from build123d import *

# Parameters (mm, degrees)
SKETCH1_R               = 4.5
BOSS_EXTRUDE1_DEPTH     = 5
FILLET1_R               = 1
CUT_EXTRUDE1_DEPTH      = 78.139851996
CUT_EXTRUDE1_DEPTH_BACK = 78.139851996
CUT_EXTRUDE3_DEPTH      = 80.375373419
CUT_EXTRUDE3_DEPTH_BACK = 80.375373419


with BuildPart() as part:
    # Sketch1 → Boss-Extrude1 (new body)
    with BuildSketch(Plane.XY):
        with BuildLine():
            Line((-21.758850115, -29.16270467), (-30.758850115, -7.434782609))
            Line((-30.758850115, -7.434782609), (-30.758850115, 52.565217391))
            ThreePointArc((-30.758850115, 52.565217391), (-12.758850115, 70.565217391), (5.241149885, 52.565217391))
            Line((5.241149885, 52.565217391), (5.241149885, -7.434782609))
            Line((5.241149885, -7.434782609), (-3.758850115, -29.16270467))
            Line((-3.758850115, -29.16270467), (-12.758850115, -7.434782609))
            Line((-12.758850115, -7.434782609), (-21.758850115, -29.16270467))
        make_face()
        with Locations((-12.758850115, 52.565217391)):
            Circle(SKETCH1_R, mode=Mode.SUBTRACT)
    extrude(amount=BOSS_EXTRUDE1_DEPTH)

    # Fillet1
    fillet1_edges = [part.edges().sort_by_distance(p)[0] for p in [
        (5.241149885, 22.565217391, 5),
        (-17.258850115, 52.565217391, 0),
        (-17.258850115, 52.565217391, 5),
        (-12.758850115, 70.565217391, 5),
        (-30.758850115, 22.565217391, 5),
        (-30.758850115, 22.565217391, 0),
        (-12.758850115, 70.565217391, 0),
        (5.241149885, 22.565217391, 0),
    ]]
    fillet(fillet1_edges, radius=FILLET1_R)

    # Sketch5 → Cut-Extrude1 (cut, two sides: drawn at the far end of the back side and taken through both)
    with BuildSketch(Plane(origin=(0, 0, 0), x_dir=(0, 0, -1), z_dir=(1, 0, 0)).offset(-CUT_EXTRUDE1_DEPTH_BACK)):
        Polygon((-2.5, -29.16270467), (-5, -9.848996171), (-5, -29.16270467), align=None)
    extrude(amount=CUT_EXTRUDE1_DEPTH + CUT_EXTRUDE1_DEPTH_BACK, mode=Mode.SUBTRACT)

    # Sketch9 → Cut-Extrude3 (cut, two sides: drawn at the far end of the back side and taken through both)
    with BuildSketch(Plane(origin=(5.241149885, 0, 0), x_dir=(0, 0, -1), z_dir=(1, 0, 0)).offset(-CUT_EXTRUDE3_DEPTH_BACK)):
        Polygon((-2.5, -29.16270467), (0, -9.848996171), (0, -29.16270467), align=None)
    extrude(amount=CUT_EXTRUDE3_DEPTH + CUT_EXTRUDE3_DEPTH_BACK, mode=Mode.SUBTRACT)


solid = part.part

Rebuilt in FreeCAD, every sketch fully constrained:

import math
import FreeCAD as App
import Part
import Sketcher
Q = App.Units.Quantity


def edges_at(feature, points):
    """Names of the edges that pass closest to the given points."""
    edges = feature.Shape.Edges
    near = lambda p: min(range(len(edges)), key=lambda i: edges[i].distToShape(Part.Vertex(*p))[0])
    return sorted({f"Edge{near(p) + 1}" for p in points})


def add_polygon(sketch, points):
    """Adds a closed chain of lines whose ends are joined by coincident constraints."""
    first, n = sketch.GeometryCount, len(points)
    for a, b in zip(points, points[1:] + points[:1]):
        sketch.addGeometry(Part.LineSegment(App.Vector(*a, 0), App.Vector(*b, 0)), False)
    for i in range(n):
        sketch.addConstraint(Sketcher.Constraint("Coincident", first + i, 2, first + (i + 1) % n, 1))

doc = App.newDocument("Part")
body = doc.addObject("PartDesign::Body", "Body")

sketch1 = doc.addObject("Sketcher::SketchObject", "Sketch")
body.addObject(sketch1)
sketch1.AttachmentSupport = (doc.XY_Plane, [""])
sketch1.MapMode = "FlatFace"
sketch1.addGeometry([
    Part.LineSegment(App.Vector(-30.8, -7.4, 0), App.Vector(-21.8, -29.2, 0)),
    Part.LineSegment(App.Vector(-21.8, -29.2, 0), App.Vector(-12.8, -7.4, 0)),
    Part.LineSegment(App.Vector(-12.8, -7.4, 0), App.Vector(-3.8, -29.2, 0)),
    Part.LineSegment(App.Vector(-3.8, -29.2, 0), App.Vector(5.2, -7.4, 0)),
    Part.LineSegment(App.Vector(5.2, -7.4, 0), App.Vector(5.2, 52.6, 0)),
    Part.ArcOfCircle(Part.Circle(App.Vector(-12.8, 52.6, 0), App.Vector(0, 0, 1), 18), math.radians(0), math.radians(180)),
    Part.LineSegment(App.Vector(-30.8, 52.6, 0), App.Vector(-30.8, -7.4, 0)),
    Part.Circle(App.Vector(-12.8, 52.6, 0), App.Vector(0, 0, 1), 4.5),
], False)
sketch1.addConstraint([
    Sketcher.Constraint("Coincident", 0, 2, 1, 1),
    Sketcher.Constraint("Coincident", 1, 2, 2, 1),
    Sketcher.Constraint("Coincident", 2, 2, 3, 1),
    Sketcher.Constraint("Coincident", 3, 2, 4, 1),
    Sketcher.Constraint("Tangent", 4, 2, 5, 1),
    Sketcher.Constraint("Tangent", 5, 2, 6, 1),
    Sketcher.Constraint("Coincident", 6, 2, 0, 1),
    Sketcher.Constraint("Vertical", 4),
    Sketcher.Constraint("Vertical", 6),
    Sketcher.Constraint("Coincident", 7, 3, 5, 3),
    Sketcher.Constraint("Parallel", 0, 2),
    Sketcher.Constraint("Parallel", 1, 3),
    Sketcher.Constraint("Horizontal", 0, 2, 2, 2),
    Sketcher.Constraint("Horizontal", 1, 2, 3, 2),
    Sketcher.Constraint("Horizontal", 3, 2, 6, 2),
    Sketcher.Constraint("Equal", 0, 1),
    Sketcher.Constraint("Diameter", 7, Q("9 mm")),
    Sketcher.Constraint("Radius", 5, Q("18 mm")),
    Sketcher.Constraint("DistanceY", 4, 1, 4, 2, Q("60 mm")),
    Sketcher.Constraint("Angle", 0, Q("-67.5 deg")),
    Sketcher.Constraint("DistanceX", 5, 3, -1, 1, Q("12.75885 mm")),
    Sketcher.Constraint("DistanceY", -1, 1, 5, 3, Q("52.565217 mm")),
])
pad1 = doc.addObject("PartDesign::Pad", "Pad")
body.addObject(pad1)
pad1.Profile = sketch1
pad1.Length = 5
doc.recompute()

fillet = doc.addObject("PartDesign::Fillet", "Fillet")
body.addObject(fillet)
fillet.Base = (pad1, edges_at(pad1, [
    (5.241, 22.565, 5),
    (-17.259, 52.565, 0),
    (-17.259, 52.565, 5),
    (-12.759, 70.565, 5),
    (-30.759, 22.565, 5),
    (-30.759, 22.565, 0),
    (-12.759, 70.565, 0),
    (5.241, 22.565, 0),
]))
fillet.Radius = 1

sketch2 = doc.addObject("Sketcher::SketchObject", "Sketch001")
body.addObject(sketch2)
sketch2.AttachmentSupport = (doc.YZ_Plane, [""])
sketch2.MapMode = "FlatFace"
add_polygon(sketch2, [(-29.2, 2.5), (-9.8, 5), (-29.2, 5)])
sketch2.addConstraint([
    Sketcher.Constraint("Horizontal", 1),
    Sketcher.Constraint("Vertical", 2),
    Sketcher.Constraint("DistanceY", 2, 2, 2, 1, Q("2.5 mm")),
    Sketcher.Constraint("DistanceY", -1, 1, 0, 2, Q("5 mm")),
    Sketcher.Constraint("DistanceX", 1, 2, 1, 1, Q("19.313708 mm")),
    Sketcher.Constraint("DistanceX", 0, 2, -1, 1, Q("9.848996 mm")),
])
pocket1 = doc.addObject("PartDesign::Pocket", "Pocket")
body.addObject(pocket1)
pocket1.Profile = sketch2
pocket1.Type = "ThroughAll"
pocket1.Midplane = True

sketch3 = doc.addObject("Sketcher::SketchObject", "Sketch002")
body.addObject(sketch3)
sketch3.AttachmentSupport = (doc.YZ_Plane, [""])
sketch3.MapMode = "FlatFace"
sketch3.AttachmentOffset = App.Placement(App.Vector(0, 0, 5.24115), App.Rotation())
add_polygon(sketch3, [(-9.8, 0), (-29.2, 2.5), (-29.2, 0)])
sketch3.addConstraint([
    Sketcher.Constraint("Vertical", 1),
    Sketcher.Constraint("Horizontal", 2),
    Sketcher.Constraint("PointOnObject", 1, 2, -1),
    Sketcher.Constraint("DistanceY", 1, 2, 1, 1, Q("2.5 mm")),
    Sketcher.Constraint("DistanceX", 2, 1, 2, 2, Q("19.313708 mm")),
    Sketcher.Constraint("DistanceX", 0, 2, -1, 1, Q("29.162705 mm")),
])
pocket2 = doc.addObject("PartDesign::Pocket", "Pocket001")
body.addObject(pocket2)
pocket2.Profile = sketch3
pocket2.Type = "ThroughAll"
pocket2.Midplane = True

doc.recompute()
